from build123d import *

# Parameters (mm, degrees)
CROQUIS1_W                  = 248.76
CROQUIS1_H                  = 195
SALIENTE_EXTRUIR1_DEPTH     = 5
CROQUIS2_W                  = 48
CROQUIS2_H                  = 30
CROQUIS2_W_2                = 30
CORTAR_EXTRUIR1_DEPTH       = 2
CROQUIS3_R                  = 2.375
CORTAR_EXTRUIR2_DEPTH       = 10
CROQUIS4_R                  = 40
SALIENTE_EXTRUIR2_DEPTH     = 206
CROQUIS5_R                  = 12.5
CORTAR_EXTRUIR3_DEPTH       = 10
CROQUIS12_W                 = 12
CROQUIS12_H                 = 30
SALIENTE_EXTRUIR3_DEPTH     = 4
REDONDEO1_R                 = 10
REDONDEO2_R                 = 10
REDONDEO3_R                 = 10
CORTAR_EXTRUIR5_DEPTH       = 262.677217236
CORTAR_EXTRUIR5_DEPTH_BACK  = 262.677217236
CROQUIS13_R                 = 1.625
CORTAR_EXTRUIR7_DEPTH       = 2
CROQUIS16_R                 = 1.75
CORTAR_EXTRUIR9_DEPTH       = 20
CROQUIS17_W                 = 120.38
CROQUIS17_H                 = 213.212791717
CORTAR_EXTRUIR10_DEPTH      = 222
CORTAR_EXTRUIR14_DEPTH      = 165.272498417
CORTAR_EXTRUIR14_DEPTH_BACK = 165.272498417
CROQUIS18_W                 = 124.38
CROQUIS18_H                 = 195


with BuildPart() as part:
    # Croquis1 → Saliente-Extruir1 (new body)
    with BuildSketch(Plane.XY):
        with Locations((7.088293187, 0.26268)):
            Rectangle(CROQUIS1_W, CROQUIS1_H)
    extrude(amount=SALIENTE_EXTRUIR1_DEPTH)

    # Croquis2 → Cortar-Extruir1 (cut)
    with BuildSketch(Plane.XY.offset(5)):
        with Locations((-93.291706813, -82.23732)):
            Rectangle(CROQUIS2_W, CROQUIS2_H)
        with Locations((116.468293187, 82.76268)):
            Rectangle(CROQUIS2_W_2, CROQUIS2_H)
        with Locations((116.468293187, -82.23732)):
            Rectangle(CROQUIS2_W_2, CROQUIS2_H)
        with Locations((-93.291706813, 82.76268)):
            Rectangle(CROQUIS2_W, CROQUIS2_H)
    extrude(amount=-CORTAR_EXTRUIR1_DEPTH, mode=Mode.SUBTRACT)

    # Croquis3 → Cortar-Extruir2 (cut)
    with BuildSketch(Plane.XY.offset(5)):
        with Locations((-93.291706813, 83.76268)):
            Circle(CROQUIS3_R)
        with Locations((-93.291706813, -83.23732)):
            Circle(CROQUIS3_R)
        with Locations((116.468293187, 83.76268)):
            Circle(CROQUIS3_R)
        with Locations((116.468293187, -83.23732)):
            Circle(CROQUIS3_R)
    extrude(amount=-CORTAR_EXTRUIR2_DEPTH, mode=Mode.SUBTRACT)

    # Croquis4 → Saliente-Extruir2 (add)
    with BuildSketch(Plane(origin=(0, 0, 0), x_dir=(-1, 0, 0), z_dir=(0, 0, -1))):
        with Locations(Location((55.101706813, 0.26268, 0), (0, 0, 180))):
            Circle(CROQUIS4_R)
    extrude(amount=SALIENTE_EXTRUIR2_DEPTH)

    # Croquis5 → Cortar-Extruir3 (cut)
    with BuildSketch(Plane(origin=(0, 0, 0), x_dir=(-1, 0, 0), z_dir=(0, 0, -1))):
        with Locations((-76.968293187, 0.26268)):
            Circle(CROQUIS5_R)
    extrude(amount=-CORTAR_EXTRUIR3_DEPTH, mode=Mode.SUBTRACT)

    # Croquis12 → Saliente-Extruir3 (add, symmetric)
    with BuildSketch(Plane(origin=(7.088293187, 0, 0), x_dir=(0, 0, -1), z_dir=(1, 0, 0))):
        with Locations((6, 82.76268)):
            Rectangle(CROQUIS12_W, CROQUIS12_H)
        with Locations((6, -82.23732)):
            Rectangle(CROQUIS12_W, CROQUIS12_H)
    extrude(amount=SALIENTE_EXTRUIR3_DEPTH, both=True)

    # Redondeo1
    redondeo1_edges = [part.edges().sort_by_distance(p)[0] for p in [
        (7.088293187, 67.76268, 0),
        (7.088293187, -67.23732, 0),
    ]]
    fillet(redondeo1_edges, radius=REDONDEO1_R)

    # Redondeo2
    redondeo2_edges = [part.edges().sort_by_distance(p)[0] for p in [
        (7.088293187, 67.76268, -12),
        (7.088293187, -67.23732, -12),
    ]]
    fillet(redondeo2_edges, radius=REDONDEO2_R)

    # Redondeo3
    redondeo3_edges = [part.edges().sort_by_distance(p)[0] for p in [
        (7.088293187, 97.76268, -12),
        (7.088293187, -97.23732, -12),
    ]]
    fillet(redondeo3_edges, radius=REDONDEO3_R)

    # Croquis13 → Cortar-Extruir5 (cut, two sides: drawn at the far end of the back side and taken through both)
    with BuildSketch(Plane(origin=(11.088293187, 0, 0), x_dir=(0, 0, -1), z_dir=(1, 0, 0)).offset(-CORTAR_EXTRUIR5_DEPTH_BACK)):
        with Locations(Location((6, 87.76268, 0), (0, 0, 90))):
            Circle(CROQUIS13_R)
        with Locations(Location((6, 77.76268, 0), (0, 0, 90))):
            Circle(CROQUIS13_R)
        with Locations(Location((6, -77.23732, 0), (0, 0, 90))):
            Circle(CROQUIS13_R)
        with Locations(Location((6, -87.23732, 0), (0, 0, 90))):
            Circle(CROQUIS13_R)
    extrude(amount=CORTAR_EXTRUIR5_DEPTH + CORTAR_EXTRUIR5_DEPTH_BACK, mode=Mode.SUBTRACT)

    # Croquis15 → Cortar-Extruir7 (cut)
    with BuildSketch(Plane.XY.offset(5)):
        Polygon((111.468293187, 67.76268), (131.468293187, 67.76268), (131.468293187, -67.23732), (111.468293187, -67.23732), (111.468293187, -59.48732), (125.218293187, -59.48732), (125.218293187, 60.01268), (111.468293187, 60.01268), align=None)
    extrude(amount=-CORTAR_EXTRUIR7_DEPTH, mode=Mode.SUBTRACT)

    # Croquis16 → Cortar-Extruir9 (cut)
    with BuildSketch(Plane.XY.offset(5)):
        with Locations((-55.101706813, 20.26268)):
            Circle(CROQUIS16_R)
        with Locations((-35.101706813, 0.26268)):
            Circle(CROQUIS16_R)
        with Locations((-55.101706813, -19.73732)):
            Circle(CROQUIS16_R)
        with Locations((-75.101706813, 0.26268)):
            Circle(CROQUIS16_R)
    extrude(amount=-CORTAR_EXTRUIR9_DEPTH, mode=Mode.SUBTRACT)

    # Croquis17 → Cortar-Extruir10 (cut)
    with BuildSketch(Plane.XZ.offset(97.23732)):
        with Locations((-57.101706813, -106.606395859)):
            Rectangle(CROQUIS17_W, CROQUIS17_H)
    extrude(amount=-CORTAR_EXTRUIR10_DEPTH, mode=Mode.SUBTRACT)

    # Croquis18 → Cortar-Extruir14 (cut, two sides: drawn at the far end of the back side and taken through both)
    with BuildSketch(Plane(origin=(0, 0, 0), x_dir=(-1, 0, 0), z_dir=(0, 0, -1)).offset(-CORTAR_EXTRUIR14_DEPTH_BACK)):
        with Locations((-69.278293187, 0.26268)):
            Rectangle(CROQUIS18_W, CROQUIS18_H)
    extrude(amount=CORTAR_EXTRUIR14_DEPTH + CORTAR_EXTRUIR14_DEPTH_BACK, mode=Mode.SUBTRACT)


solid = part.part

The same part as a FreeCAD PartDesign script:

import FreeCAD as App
import Part
import Sketcher
Q = App.Units.Quantity


def edges_at(feature, points):
    """Names of the edges that pass closest to the given points."""
    edges = feature.Shape.Edges
    near = lambda p: min(range(len(edges)), key=lambda i: edges[i].distToShape(Part.Vertex(*p))[0])
    return sorted({f"Edge{near(p) + 1}" for p in points})


def add_polygon(sketch, points):
    """Adds a closed chain of lines whose ends are joined by coincident constraints."""
    first, n = sketch.GeometryCount, len(points)
    for a, b in zip(points, points[1:] + points[:1]):
        sketch.addGeometry(Part.LineSegment(App.Vector(*a, 0), App.Vector(*b, 0)), False)
    for i in range(n):
        sketch.addConstraint(Sketcher.Constraint("Coincident", first + i, 2, first + (i + 1) % n, 1))

doc = App.newDocument("Part")
body = doc.addObject("PartDesign::Body", "Body")

# Sketch on XY plane
sketch1 = body.newObject("Sketcher::SketchObject", "Sketch")
sketch1.AttachmentSupport = (doc.getObject("XY_Plane"), [""])
sketch1.MapMode = "FlatFace"
add_polygon(sketch1, [(-117.291707, 97.76268), (-117.291707, -97.23732), (131.468293, -97.23732), (131.468293, 97.76268)])  # lines 0-3
sketch1.addConstraint(Sketcher.Constraint("Vertical", 0))
sketch1.addConstraint(Sketcher.Constraint("Horizontal", 1))
sketch1.addConstraint(Sketcher.Constraint("Vertical", 2))
sketch1.addConstraint(Sketcher.Constraint("Horizontal", 3))
sketch1.addConstraint(Sketcher.Constraint("DistanceY", 0, 2, 0, 1, Q("195 mm")))
sketch1.addConstraint(Sketcher.Constraint("DistanceX", 1, 1, 1, 2, Q("248.76 mm")))
sketch1.addConstraint(Sketcher.Constraint("DistanceY", 0, 2, -1, 1, Q("97.23732 mm")))
sketch1.addConstraint(Sketcher.Constraint("DistanceX", 0, 2, -1, 1, Q("117.291707 mm")))
pad1 = body.newObject("PartDesign::Pad", "Pad")
pad1.Profile = sketch1
pad1.Length = 5

# Sketch on XY plane
sketch2 = body.newObject("Sketcher::SketchObject", "Sketch001")
sketch2.AttachmentSupport = (doc.getObject("XY_Plane"), [""])
sketch2.MapMode = "FlatFace"
sketch2.AttachmentOffset = App.Placement(App.Vector(0, 0, 5), App.Rotation())
add_polygon(sketch2, [(-117.291707, -67.23732), (-117.291707, -97.23732), (-69.291707, -97.23732), (-69.291707, -67.23732)])  # lines 0-3
add_polygon(sketch2, [(101.468293, 97.76268), (101.468293, 67.76268), (131.468293, 67.76268), (131.468293, 97.76268)])  # lines 4-7
add_polygon(sketch2, [(101.468293, -67.23732), (101.468293, -97.23732), (131.468293, -97.23732), (131.468293, -67.23732)])  # lines 8-11
add_polygon(sketch2, [(-117.291707, 97.76268), (-117.291707, 67.76268), (-69.291707, 67.76268), (-69.291707, 97.76268)])  # lines 12-15
sketch2.addConstraint(Sketcher.Constraint("Vertical", 0))
sketch2.addConstraint(Sketcher.Constraint("Horizontal", 1))
sketch2.addConstraint(Sketcher.Constraint("Vertical", 2))
sketch2.addConstraint(Sketcher.Constraint("Horizontal", 3))
sketch2.addConstraint(Sketcher.Constraint("Vertical", 4))
sketch2.addConstraint(Sketcher.Constraint("Horizontal", 5))
sketch2.addConstraint(Sketcher.Constraint("Vertical", 6))
sketch2.addConstraint(Sketcher.Constraint("Horizontal", 7))
sketch2.addConstraint(Sketcher.Constraint("Vertical", 8))
sketch2.addConstraint(Sketcher.Constraint("Horizontal", 9))
sketch2.addConstraint(Sketcher.Constraint("Vertical", 10))
sketch2.addConstraint(Sketcher.Constraint("Horizontal", 11))
sketch2.addConstraint(Sketcher.Constraint("Vertical", 12))
sketch2.addConstraint(Sketcher.Constraint("Horizontal", 13))
sketch2.addConstraint(Sketcher.Constraint("Vertical", 14))
sketch2.addConstraint(Sketcher.Constraint("Horizontal", 15))
sketch2.addConstraint(Sketcher.Constraint("Horizontal", 1, 2, 8, 2))
sketch2.addConstraint(Sketcher.Constraint("Horizontal", 3, 2, 10, 2))
sketch2.addConstraint(Sketcher.Constraint("Horizontal", 5, 2, 12, 2))
sketch2.addConstraint(Sketcher.Constraint("Horizontal", 7, 2, 14, 2))
sketch2.addConstraint(Sketcher.Constraint("Vertical", 7, 2, 8, 2))
sketch2.addConstraint(Sketcher.Constraint("Vertical", 6, 2, 9, 2))
sketch2.addConstraint(Sketcher.Constraint("Vertical", 3, 2, 12, 2))
sketch2.addConstraint(Sketcher.Constraint("Vertical", 2, 2, 13, 2))
sketch2.addConstraint(Sketcher.Constraint("Equal", 11, 0))
sketch2.addConstraint(Sketcher.Constraint("Equal", 2, 4))
sketch2.addConstraint(Sketcher.Constraint("DistanceX", 1, 1, 1, 2, Q("48 mm")))
sketch2.addConstraint(Sketcher.Constraint("DistanceX", 5, 1, 5, 2, Q("30 mm")))
sketch2.addConstraint(Sketcher.Constraint("DistanceY", 2, 2, 4, 2, Q("135 mm")))
sketch2.addConstraint(Sketcher.Constraint("DistanceX", 2, 2, 4, 2, Q("170.76 mm")))
sketch2.addConstraint(Sketcher.Constraint("DistanceY", 0, 2, -1, 1, Q("97.23732 mm")))
sketch2.addConstraint(Sketcher.Constraint("DistanceX", 0, 2, -1, 1, Q("117.291707 mm")))
pocket1 = body.newObject("PartDesign::Pocket", "Pocket")
pocket1.Profile = sketch2
pocket1.Length = 2

# Sketch on XY plane
sketch3 = body.newObject("Sketcher::SketchObject", "Sketch002")
sketch3.AttachmentSupport = (doc.getObject("XY_Plane"), [""])
sketch3.MapMode = "FlatFace"
sketch3.AttachmentOffset = App.Placement(App.Vector(0, 0, 5), App.Rotation())
sketch3.addGeometry(Part.Circle(App.Vector(-93.291707, 83.76268, 0), App.Vector(0, 0, 1), 2.375), False)
sketch3.addGeometry(Part.Circle(App.Vector(-93.291707, -83.23732, 0), App.Vector(0, 0, 1), 2.375), False)
sketch3.addGeometry(Part.Circle(App.Vector(116.468293, 83.76268, 0), App.Vector(0, 0, 1), 2.375), False)
sketch3.addGeometry(Part.Circle(App.Vector(116.468293, -83.23732, 0), App.Vector(0, 0, 1), 2.375), False)
sketch3.addConstraint(Sketcher.Constraint("Equal", 0, 1))
sketch3.addConstraint(Sketcher.Constraint("Equal", 1, 2))
sketch3.addConstraint(Sketcher.Constraint("Equal", 2, 3))
sketch3.addConstraint(Sketcher.Constraint("Horizontal", 0, 3, 2, 3))
sketch3.addConstraint(Sketcher.Constraint("Horizontal", 1, 3, 3, 3))
sketch3.addConstraint(Sketcher.Constraint("Vertical", 0, 3, 1, 3))
sketch3.addConstraint(Sketcher.Constraint("Vertical", 2, 3, 3, 3))
sketch3.addConstraint(Sketcher.Constraint("Diameter", 0, Q("4.75 mm")))
sketch3.addConstraint(Sketcher.Constraint("DistanceY", 1, 3, 0, 3, Q("167 mm")))
sketch3.addConstraint(Sketcher.Constraint("DistanceX", 0, 3, 2, 3, Q("209.76 mm")))
sketch3.addConstraint(Sketcher.Constraint("DistanceY", -1, 1, 0, 3, Q("83.76268 mm")))
sketch3.addConstraint(Sketcher.Constraint("DistanceX", 0, 3, -1, 1, Q("93.291707 mm")))
pocket2 = body.newObject("PartDesign::Pocket", "Pocket001")
pocket2.Profile = sketch3
pocket2.Length = 10

# Sketch on XY plane
sketch4 = body.newObject("Sketcher::SketchObject", "Sketch003")
sketch4.AttachmentSupport = (doc.getObject("XY_Plane"), [""])
sketch4.MapMode = "FlatFace"
sketch4.addGeometry(Part.Circle(App.Vector(-55.101707, 0.26268, 0), App.Vector(0, 0, 1), 40), False)
sketch4.addConstraint(Sketcher.Constraint("Diameter", 0, Q("80 mm")))
sketch4.addConstraint(Sketcher.Constraint("DistanceY", -1, 1, 0, 3, Q("0.26268 mm")))
sketch4.addConstraint(Sketcher.Constraint("DistanceX", 0, 3, -1, 1, Q("55.101707 mm")))
pad2 = body.newObject("PartDesign::Pad", "Pad001")
pad2.Profile = sketch4
pad2.Length = 206
pad2.Reversed = True

# Sketch on XY plane
sketch5 = body.newObject("Sketcher::SketchObject", "Sketch004")
sketch5.AttachmentSupport = (doc.getObject("XY_Plane"), [""])
sketch5.MapMode = "FlatFace"
sketch5.addGeometry(Part.Circle(App.Vector(76.968293, 0.26268, 0), App.Vector(0, 0, 1), 12.5), False)
sketch5.addConstraint(Sketcher.Constraint("Diameter", 0, Q("25 mm")))
sketch5.addConstraint(Sketcher.Constraint("DistanceY", -1, 1, 0, 3, Q("0.26268 mm")))
sketch5.addConstraint(Sketcher.Constraint("DistanceX", -1, 1, 0, 3, Q("76.968293 mm")))
pocket3 = body.newObject("PartDesign::Pocket", "Pocket002")
pocket3.Profile = sketch5
pocket3.Length = 10
pocket3.Reversed = True

# Sketch on YZ plane
sketch6 = body.newObject("Sketcher::SketchObject", "Sketch005")
sketch6.AttachmentSupport = (doc.getObject("YZ_Plane"), [""])
sketch6.MapMode = "FlatFace"
sketch6.AttachmentOffset = App.Placement(App.Vector(0, 0, 7.088293), App.Rotation())
add_polygon(sketch6, [(97.76268, 0), (67.76268, 0), (67.76268, -12), (97.76268, -12)])  # lines 0-3
add_polygon(sketch6, [(-67.23732, 0), (-97.23732, 0), (-97.23732, -12), (-67.23732, -12)])  # lines 4-7
sketch6.addConstraint(Sketcher.Constraint("Horizontal", 0))
sketch6.addConstraint(Sketcher.Constraint("Vertical", 1))
sketch6.addConstraint(Sketcher.Constraint("Horizontal", 2))
sketch6.addConstraint(Sketcher.Constraint("Vertical", 3))
sketch6.addConstraint(Sketcher.Constraint("Horizontal", 4))
sketch6.addConstraint(Sketcher.Constraint("Vertical", 5))
sketch6.addConstraint(Sketcher.Constraint("Horizontal", 6))
sketch6.addConstraint(Sketcher.Constraint("Vertical", 7))
sketch6.addConstraint(Sketcher.Constraint("PointOnObject", 0, 2, -1))
sketch6.addConstraint(Sketcher.Constraint("PointOnObject", 4, 2, -1))
sketch6.addConstraint(Sketcher.Constraint("Horizontal", 2, 2, 5, 2))
sketch6.addConstraint(Sketcher.Constraint("Equal", 2, 4))
sketch6.addConstraint(Sketcher.Constraint("DistanceX", 0, 2, 0, 1, Q("30 mm")))
sketch6.addConstraint(Sketcher.Constraint("DistanceY", 1, 2, 1, 1, Q("12 mm")))
sketch6.addConstraint(Sketcher.Constraint("DistanceX", 4, 2, 0, 2, Q("165 mm")))
sketch6.addConstraint(Sketcher.Constraint("DistanceX", -1, 1, 0, 2, Q("67.76268 mm")))
pad3 = body.newObject("PartDesign::Pad", "Pad002")
pad3.Profile = sketch6
pad3.Length = 8
pad3.Midplane = True
doc.recompute()

fillet = body.newObject("PartDesign::Fillet", "Fillet")
fillet.Base = (pad3, edges_at(pad3, [(7.088, 67.763, 0), (7.088, -67.237, 0)]))
fillet.Radius = 10
doc.recompute()

fillet2 = body.newObject("PartDesign::Fillet", "Fillet001")
fillet2.Base = (fillet, edges_at(fillet, [(7.088, 67.763, -12), (7.088, -67.237, -12)]))
fillet2.Radius = 10
doc.recompute()

fillet3 = body.newObject("PartDesign::Fillet", "Fillet002")
fillet3.Base = (fillet2, edges_at(fillet2, [(7.088, 97.763, -12), (7.088, -97.237, -12)]))
fillet3.Radius = 10

# Sketch on YZ plane
sketch7 = body.newObject("Sketcher::SketchObject", "Sketch006")
sketch7.AttachmentSupport = (doc.getObject("YZ_Plane"), [""])
sketch7.MapMode = "FlatFace"
sketch7.AttachmentOffset = App.Placement(App.Vector(0, 0, 11.088293), App.Rotation())
sketch7.addGeometry(Part.Circle(App.Vector(87.76268, -6, 0), App.Vector(0, 0, 1), 1.625), False)
sketch7.addGeometry(Part.Circle(App.Vector(77.76268, -6, 0), App.Vector(0, 0, 1), 1.625), False)
sketch7.addGeometry(Part.Circle(App.Vector(-77.23732, -6, 0), App.Vector(0, 0, 1), 1.625), False)
sketch7.addGeometry(Part.Circle(App.Vector(-87.23732, -6, 0), App.Vector(0, 0, 1), 1.625), False)
sketch7.addConstraint(Sketcher.Constraint("Equal", 0, 1))
sketch7.addConstraint(Sketcher.Constraint("Equal", 1, 2))
sketch7.addConstraint(Sketcher.Constraint("Equal", 2, 3))
sketch7.addConstraint(Sketcher.Constraint("Horizontal", 0, 3, 1, 3))
sketch7.addConstraint(Sketcher.Constraint("Horizontal", 1, 3, 2, 3))
sketch7.addConstraint(Sketcher.Constraint("Horizontal", 2, 3, 3, 3))
sketch7.addConstraint(Sketcher.Constraint("Diameter", 0, Q("3.25 mm")))
sketch7.addConstraint(Sketcher.Constraint("DistanceY", 0, 3, -1, 1, Q("6 mm")))
sketch7.addConstraint(Sketcher.Constraint("DistanceX", 1, 3, 0, 3, Q("10 mm")))
sketch7.addConstraint(Sketcher.Constraint("DistanceX", 2, 3, 1, 3, Q("155 mm")))
sketch7.addConstraint(Sketcher.Constraint("DistanceX", 3, 3, 2, 3, Q("10 mm")))
sketch7.addConstraint(Sketcher.Constraint("DistanceX", -1, 1, 0, 3, Q("87.76268 mm")))
pocket4 = body.newObject("PartDesign::Pocket", "Pocket003")
pocket4.Profile = sketch7
pocket4.Type = "ThroughAll"
pocket4.Midplane = True

# Sketch on XY plane
sketch8 = body.newObject("Sketcher::SketchObject", "Sketch007")
sketch8.AttachmentSupport = (doc.getObject("XY_Plane"), [""])
sketch8.MapMode = "FlatFace"
sketch8.AttachmentOffset = App.Placement(App.Vector(0, 0, 5), App.Rotation())
add_polygon(sketch8, [(131.468293, 67.76268), (111.468293, 67.76268), (111.468293, 60.01268), (125.218293, 60.01268), (125.218293, -59.48732), (111.468293, -59.48732), (111.468293, -67.23732), (131.468293, -67.23732)])  # lines 0-7
sketch8.addConstraint(Sketcher.Constraint("Horizontal", 0))
sketch8.addConstraint(Sketcher.Constraint("Vertical", 1))
sketch8.addConstraint(Sketcher.Constraint("Horizontal", 2))
sketch8.addConstraint(Sketcher.Constraint("Vertical", 3))
sketch8.addConstraint(Sketcher.Constraint("Horizontal", 4))
sketch8.addConstraint(Sketcher.Constraint("Vertical", 5))
sketch8.addConstraint(Sketcher.Constraint("Horizontal", 6))
sketch8.addConstraint(Sketcher.Constraint("Vertical", 7))
sketch8.addConstraint(Sketcher.Constraint("Vertical", 1, 2, 4, 2))
sketch8.addConstraint(Sketcher.Constraint("Equal", 1, 5))
sketch8.addConstraint(Sketcher.Constraint("DistanceX", 0, 2, 0, 1, Q("20 mm")))
sketch8.addConstraint(Sketcher.Constraint("DistanceY", 7, 1, 7, 2, Q("135 mm")))
sketch8.addConstraint(Sketcher.Constraint("DistanceY", 3, 2, 3, 1, Q("119.5 mm")))
sketch8.addConstraint(Sketcher.Constraint("DistanceX", 2, 1, 2, 2, Q("13.75 mm")))
sketch8.addConstraint(Sketcher.Constraint("DistanceY", -1, 1, 0, 2, Q("67.76268 mm")))
sketch8.addConstraint(Sketcher.Constraint("DistanceX", -1, 1, 0, 2, Q("111.468293 mm")))
pocket5 = body.newObject("PartDesign::Pocket", "Pocket004")
pocket5.Profile = sketch8
pocket5.Length = 2

# Sketch on XY plane
sketch9 = body.newObject("Sketcher::SketchObject", "Sketch008")
sketch9.AttachmentSupport = (doc.getObject("XY_Plane"), [""])
sketch9.MapMode = "FlatFace"
sketch9.AttachmentOffset = App.Placement(App.Vector(0, 0, 5), App.Rotation())
sketch9.addGeometry(Part.Circle(App.Vector(-55.101707, 20.26268, 0), App.Vector(0, 0, 1), 1.75), False)
sketch9.addGeometry(Part.Circle(App.Vector(-35.101707, 0.26268, 0), App.Vector(0, 0, 1), 1.75), False)
sketch9.addGeometry(Part.Circle(App.Vector(-55.101707, -19.73732, 0), App.Vector(0, 0, 1), 1.75), False)
sketch9.addGeometry(Part.Circle(App.Vector(-75.101707, 0.26268, 0), App.Vector(0, 0, 1), 1.75), False)
sketch9.addConstraint(Sketcher.Constraint("Equal", 0, 1))
sketch9.addConstraint(Sketcher.Constraint("Equal", 1, 2))
sketch9.addConstraint(Sketcher.Constraint("Equal", 2, 3))
sketch9.addConstraint(Sketcher.Constraint("Horizontal", 1, 3, 3, 3))
sketch9.addConstraint(Sketcher.Constraint("Vertical", 0, 3, 2, 3))
sketch9.addConstraint(Sketcher.Constraint("Diameter", 0, Q("3.5 mm")))
sketch9.addConstraint(Sketcher.Constraint("DistanceX", 0, 3, 1, 3, Q("20 mm")))
sketch9.addConstraint(Sketcher.Constraint("DistanceY", 1, 3, 0, 3, Q("20 mm")))
sketch9.addConstraint(Sketcher.Constraint("DistanceY", 2, 3, 1, 3, Q("20 mm")))
sketch9.addConstraint(Sketcher.Constraint("DistanceX", 3, 3, 0, 3, Q("20 mm")))
sketch9.addConstraint(Sketcher.Constraint("DistanceY", -1, 1, 0, 3, Q("20.26268 mm")))
sketch9.addConstraint(Sketcher.Constraint("DistanceX", 0, 3, -1, 1, Q("55.101707 mm")))
pocket6 = body.newObject("PartDesign::Pocket", "Pocket005")
pocket6.Profile = sketch9
pocket6.Length = 20

# Sketch on XZ plane
sketch10 = body.newObject("Sketcher::SketchObject", "Sketch009")
sketch10.AttachmentSupport = (doc.getObject("XZ_Plane"), [""])
sketch10.MapMode = "FlatFace"
sketch10.AttachmentOffset = App.Placement(App.Vector(0, 0, 97.23732), App.Rotation())
add_polygon(sketch10, [(-117.291707, 0), (-117.291707, -213.212792), (3.088293, -213.212792), (3.088293, 0)])  # lines 0-3
sketch10.addConstraint(Sketcher.Constraint("Vertical", 0))
sketch10.addConstraint(Sketcher.Constraint("Horizontal", 1))
sketch10.addConstraint(Sketcher.Constraint("Vertical", 2))
sketch10.addConstraint(Sketcher.Constraint("Horizontal", 3))
sketch10.addConstraint(Sketcher.Constraint("PointOnObject", 2, 2, -1))
sketch10.addConstraint(Sketcher.Constraint("DistanceX", 1, 1, 1, 2, Q("120.38 mm")))
sketch10.addConstraint(Sketcher.Constraint("DistanceY", 0, 2, 0, 1, Q("213.212792 mm")))
sketch10.addConstraint(Sketcher.Constraint("DistanceX", 0, 2, -1, 1, Q("117.291707 mm")))
pocket7 = body.newObject("PartDesign::Pocket", "Pocket006")
pocket7.Profile = sketch10
pocket7.Length = 222

# Sketch on XY plane
sketch11 = body.newObject("Sketcher::SketchObject", "Sketch010")
sketch11.AttachmentSupport = (doc.getObject("XY_Plane"), [""])
sketch11.MapMode = "FlatFace"
add_polygon(sketch11, [(131.468293, 97.76268), (131.468293, -97.23732), (7.088293, -97.23732), (7.088293, 97.76268)])  # lines 0-3
sketch11.addConstraint(Sketcher.Constraint("Vertical", 0))
sketch11.addConstraint(Sketcher.Constraint("Horizontal", 1))
sketch11.addConstraint(Sketcher.Constraint("Vertical", 2))
sketch11.addConstraint(Sketcher.Constraint("Horizontal", 3))
sketch11.addConstraint(Sketcher.Constraint("DistanceY", 0, 2, 0, 1, Q("195 mm")))
sketch11.addConstraint(Sketcher.Constraint("DistanceX", 1, 2, 1, 1, Q("124.38 mm")))
sketch11.addConstraint(Sketcher.Constraint("DistanceY", 0, 2, -1, 1, Q("97.23732 mm")))
sketch11.addConstraint(Sketcher.Constraint("DistanceX", -1, 1, 0, 2, Q("131.468293 mm")))
pocket8 = body.newObject("PartDesign::Pocket", "Pocket007")
pocket8.Profile = sketch11
pocket8.Type = "ThroughAll"
pocket8.Midplane = True

doc.recompute()
